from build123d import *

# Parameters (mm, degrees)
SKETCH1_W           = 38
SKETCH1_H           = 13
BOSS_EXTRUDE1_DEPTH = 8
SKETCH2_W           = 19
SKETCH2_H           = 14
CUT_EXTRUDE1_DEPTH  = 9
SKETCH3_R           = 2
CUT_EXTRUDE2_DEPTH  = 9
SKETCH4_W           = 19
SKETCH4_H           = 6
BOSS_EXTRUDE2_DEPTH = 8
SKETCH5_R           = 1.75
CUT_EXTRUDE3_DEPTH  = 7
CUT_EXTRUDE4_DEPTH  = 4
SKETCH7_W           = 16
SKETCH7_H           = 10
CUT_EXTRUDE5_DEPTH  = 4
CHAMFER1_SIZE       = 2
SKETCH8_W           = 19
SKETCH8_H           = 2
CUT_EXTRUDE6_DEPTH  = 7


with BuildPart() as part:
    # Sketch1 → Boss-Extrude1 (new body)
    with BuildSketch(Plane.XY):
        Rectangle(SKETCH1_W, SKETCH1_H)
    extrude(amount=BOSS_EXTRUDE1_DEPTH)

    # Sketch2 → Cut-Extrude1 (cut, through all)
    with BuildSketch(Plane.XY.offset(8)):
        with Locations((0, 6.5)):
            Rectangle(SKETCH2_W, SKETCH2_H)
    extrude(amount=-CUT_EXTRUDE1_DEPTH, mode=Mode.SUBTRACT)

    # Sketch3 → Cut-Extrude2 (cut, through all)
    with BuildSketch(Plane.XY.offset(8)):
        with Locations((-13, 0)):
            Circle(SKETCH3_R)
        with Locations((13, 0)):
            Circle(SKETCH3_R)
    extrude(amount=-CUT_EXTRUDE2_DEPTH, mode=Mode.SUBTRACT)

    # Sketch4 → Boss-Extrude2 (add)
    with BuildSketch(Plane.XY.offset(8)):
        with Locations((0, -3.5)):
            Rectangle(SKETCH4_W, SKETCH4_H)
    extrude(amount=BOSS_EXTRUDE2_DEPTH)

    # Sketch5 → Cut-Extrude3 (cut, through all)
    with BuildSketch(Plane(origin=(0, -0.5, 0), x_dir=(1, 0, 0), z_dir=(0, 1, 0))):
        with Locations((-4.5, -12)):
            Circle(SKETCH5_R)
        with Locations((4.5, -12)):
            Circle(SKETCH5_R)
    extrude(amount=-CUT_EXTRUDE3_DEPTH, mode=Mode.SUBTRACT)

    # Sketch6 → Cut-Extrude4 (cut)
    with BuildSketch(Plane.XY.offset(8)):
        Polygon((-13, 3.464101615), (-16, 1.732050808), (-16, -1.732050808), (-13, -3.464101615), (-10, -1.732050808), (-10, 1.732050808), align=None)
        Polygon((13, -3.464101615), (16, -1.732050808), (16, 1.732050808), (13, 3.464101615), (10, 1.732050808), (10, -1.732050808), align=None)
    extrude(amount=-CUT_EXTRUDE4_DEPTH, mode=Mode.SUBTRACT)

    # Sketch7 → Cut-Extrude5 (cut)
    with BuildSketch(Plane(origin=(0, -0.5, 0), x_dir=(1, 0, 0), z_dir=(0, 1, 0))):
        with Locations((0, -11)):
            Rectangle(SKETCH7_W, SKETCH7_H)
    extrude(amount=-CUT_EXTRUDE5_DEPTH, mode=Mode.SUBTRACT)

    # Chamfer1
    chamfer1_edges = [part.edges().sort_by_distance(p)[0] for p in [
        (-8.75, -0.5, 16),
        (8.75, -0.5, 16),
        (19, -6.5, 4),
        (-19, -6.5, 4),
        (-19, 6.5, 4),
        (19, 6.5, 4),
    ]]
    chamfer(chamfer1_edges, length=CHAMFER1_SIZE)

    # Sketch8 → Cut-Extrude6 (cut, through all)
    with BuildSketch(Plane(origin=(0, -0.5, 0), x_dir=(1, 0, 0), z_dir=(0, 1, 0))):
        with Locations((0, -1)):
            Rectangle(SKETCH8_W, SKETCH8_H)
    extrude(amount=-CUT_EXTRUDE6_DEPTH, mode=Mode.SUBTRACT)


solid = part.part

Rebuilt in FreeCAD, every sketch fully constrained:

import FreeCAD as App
import Part
import Sketcher
from FreeCAD import Vector
Q = App.Units.Quantity


def edges_at(feature, points):
    """Names of the edges that pass closest to the given points."""
    edges = feature.Shape.Edges
    near = lambda p: min(range(len(edges)), key=lambda i: edges[i].distToShape(Part.Vertex(*p))[0])
    return sorted({f"Edge{near(p) + 1}" for p in points})


def add_polygon(sketch, points):
    """Adds a closed chain of lines whose ends are joined by coincident constraints."""
    first, n = sketch.GeometryCount, len(points)
    for a, b in zip(points, points[1:] + points[:1]):
        sketch.addGeometry(Part.LineSegment(App.Vector(*a, 0), App.Vector(*b, 0)), False)
    for i in range(n):
        sketch.addConstraint(Sketcher.Constraint("Coincident", first + i, 2, first + (i + 1) % n, 1))

doc = App.newDocument("Part")
body = doc.addObject("PartDesign::Body", "Body")

sketch1 = body.newObject("Sketcher::SketchObject", "Sketch")
sketch1.AttachmentSupport = (doc.getObject("XY_Plane"), [""])
sketch1.MapMode = "FlatFace"
add_polygon(sketch1, [(-19, 6), (-19, -6), (19, -6), (19, 6)])
sketch1.addConstraint([
    Sketcher.Constraint("Vertical", 0),
    Sketcher.Constraint("Horizontal", 1),
    Sketcher.Constraint("Vertical", 2),
    Sketcher.Constraint("Horizontal", 3),
    Sketcher.Constraint("Symmetric", 0, 2, 2, 2, -1, 1),
    Sketcher.Constraint("DistanceX", 1, 1, 1, 2, 38.0),
    Sketcher.Constraint("DistanceY", 0, 2, 0, 1, 13.0),
])
pad1 = body.newObject("PartDesign::Pad", "Pad")
pad1.Profile = sketch1
pad1.Length = 8

sketch2 = body.newObject("Sketcher::SketchObject", "Sketch001")
sketch2.AttachmentSupport = (doc.getObject("XY_Plane"), [""])
sketch2.MapMode = "FlatFace"
sketch2.AttachmentOffset = App.Placement(Vector(0, 0, 8), App.Rotation())
add_polygon(sketch2, [(-10, 14), (-10, 0), (10, 0), (10, 14)])
sketch2.addConstraint([
    Sketcher.Constraint("Vertical", 0),
    Sketcher.Constraint("Horizontal", 1),
    Sketcher.Constraint("Vertical", 2),
    Sketcher.Constraint("Horizontal", 3),
    Sketcher.Constraint("DistanceX", 1, 1, 1, 2, 19.0),
    Sketcher.Constraint("DistanceY", 0, 2, 0, 1, 14.0),
    Sketcher.Constraint("DistanceX", 0, 2, -1, 1, 9.5),
    Sketcher.Constraint("DistanceY", 0, 2, -1, 1, 0.5),
])
pocket1 = body.newObject("PartDesign::Pocket", "Pocket")
pocket1.Profile = sketch2
pocket1.Type = "ThroughAll"

sketch3 = body.newObject("Sketcher::SketchObject", "Sketch002")
sketch3.AttachmentSupport = (doc.getObject("XY_Plane"), [""])
sketch3.MapMode = "FlatFace"
sketch3.AttachmentOffset = App.Placement(Vector(0, 0, 8), App.Rotation())
sketch3.addGeometry([
    Part.Circle(Vector(-13, 0, 0), Vector(0, 0, 1), 2),
    Part.Circle(Vector(13, 0, 0), Vector(0, 0, 1), 2),
], False)
sketch3.addConstraint([
    Sketcher.Constraint("Equal", 0, 1),
    Sketcher.Constraint("Symmetric", 0, 3, 1, 3, -1, 1),
    Sketcher.Constraint("PointOnObject", 0, 3, -1),
    Sketcher.Constraint("Diameter", 0, 4.0),
    Sketcher.Constraint("DistanceX", 0, 3, -1, 1, 13.0),
])
pocket2 = body.newObject("PartDesign::Pocket", "Pocket001")
pocket2.Profile = sketch3
pocket2.Type = "ThroughAll"

sketch4 = body.newObject("Sketcher::SketchObject", "Sketch003")
sketch4.AttachmentSupport = (doc.getObject("XY_Plane"), [""])
sketch4.MapMode = "FlatFace"
sketch4.AttachmentOffset = App.Placement(Vector(0, 0, 8), App.Rotation())
add_polygon(sketch4, [(-10, 0), (-10, -6), (10, -6), (10, 0)])
sketch4.addConstraint([
    Sketcher.Constraint("Vertical", 0),
    Sketcher.Constraint("Horizontal", 1),
    Sketcher.Constraint("Vertical", 2),
    Sketcher.Constraint("Horizontal", 3),
    Sketcher.Constraint("DistanceX", 1, 1, 1, 2, 19.0),
    Sketcher.Constraint("DistanceY", 0, 2, 0, 1, 6.0),
    Sketcher.Constraint("DistanceX", 0, 2, -1, 1, 9.5),
    Sketcher.Constraint("DistanceY", 0, 2, -1, 1, 6.5),
])
pad2 = body.newObject("PartDesign::Pad", "Pad001")
pad2.Profile = sketch4
pad2.Length = 8

sketch5 = body.newObject("Sketcher::SketchObject", "Sketch004")
sketch5.AttachmentSupport = (doc.getObject("XZ_Plane"), [""])
sketch5.MapMode = "FlatFace"
sketch5.AttachmentOffset = App.Placement(Vector(0, 0, 0.5), App.Rotation())
sketch5.addGeometry([
    Part.Circle(Vector(-4.5, 12, 0), Vector(0, 0, 1), 1.8),
    Part.Circle(Vector(4.5, 12, 0), Vector(0, 0, 1), 1.8),
], False)
sketch5.addConstraint([
    Sketcher.Constraint("Equal", 0, 1),
    Sketcher.Constraint("Symmetric", 0, 3, 1, 3, -2),
    Sketcher.Constraint("Diameter", 0, 3.5),
    Sketcher.Constraint("DistanceY", -1, 1, 0, 3, 12.0),
    Sketcher.Constraint("DistanceX", 0, 3, 1, 3, 9.0),
])
pocket3 = body.newObject("PartDesign::Pocket", "Pocket002")
pocket3.Profile = sketch5
pocket3.Type = "ThroughAll"
pocket3.Reversed = True

sketch6 = body.newObject("Sketcher::SketchObject", "Sketch005")
sketch6.AttachmentSupport = (doc.getObject("XY_Plane"), [""])
sketch6.MapMode = "FlatFace"
sketch6.AttachmentOffset = App.Placement(Vector(0, 0, 8), App.Rotation())
add_polygon(sketch6, [(-13, 3.5), (-16, 1.7), (-16, -1.7), (-13, -3.5), (-10, -1.7), (-10, 1.7)])
add_polygon(sketch6, [(13, -3.5), (16, -1.7), (16, 1.7), (13, 3.5), (10, 1.7), (10, -1.7)])
sketch6.addConstraint([
    Sketcher.Constraint("Vertical", 1),
    Sketcher.Constraint("Vertical", 4),
    Sketcher.Constraint("Vertical", 7),
    Sketcher.Constraint("Vertical", 10),
    Sketcher.Constraint("Symmetric", 0, 2, 6, 2, -1, 1),
    Sketcher.Constraint("Symmetric", 2, 2, 8, 2, -1, 1),
    Sketcher.Constraint("Symmetric", 3, 2, 9, 2, -1, 1),
    Sketcher.Constraint("Symmetric", 5, 2, 11, 2, -1, 1),
    Sketcher.Constraint("Symmetric", 5, 2, 8, 2, -2),
    Sketcher.Constraint("Parallel", 0, 3),
    Sketcher.Constraint("Parallel", 2, 5),
    Sketcher.Constraint("Parallel", 5, 8),
    Sketcher.Constraint("Parallel", 8, 11),
    Sketcher.Constraint("Horizontal", 1, 2, 3, 2),
    Sketcher.Constraint("Horizontal", 0, 2, 4, 2),
    Sketcher.Constraint("Angle", 0, Q("-150 deg")),
    Sketcher.Constraint("DistanceX", 0, 2, -1, 1, 16.0),
    Sketcher.Constraint("DistanceX", 2, 2, -1, 1, 13.0),
    Sketcher.Constraint("DistanceY", 1, 2, 1, 1, 3.464102),
])
pocket4 = body.newObject("PartDesign::Pocket", "Pocket003")
pocket4.Profile = sketch6
pocket4.Length = 4

sketch7 = body.newObject("Sketcher::SketchObject", "Sketch006")
sketch7.AttachmentSupport = (doc.getObject("XZ_Plane"), [""])
sketch7.MapMode = "FlatFace"
sketch7.AttachmentOffset = App.Placement(Vector(0, 0, 0.5), App.Rotation())
add_polygon(sketch7, [(-8, 6), (-8, 16), (8, 16), (8, 6)])
sketch7.addConstraint([
    Sketcher.Constraint("Vertical", 0),
    Sketcher.Constraint("Horizontal", 1),
    Sketcher.Constraint("Vertical", 2),
    Sketcher.Constraint("Horizontal", 3),
    Sketcher.Constraint("DistanceX", 1, 1, 1, 2, 16.0),
    Sketcher.Constraint("DistanceY", 0, 1, 0, 2, 10.0),
    Sketcher.Constraint("DistanceX", 0, 2, -1, 1, 8.0),
    Sketcher.Constraint("DistanceY", -1, 1, 0, 2, 16.0),
])
pocket5 = body.newObject("PartDesign::Pocket", "Pocket004")
pocket5.Profile = sketch7
pocket5.Length = 4
pocket5.Reversed = True
doc.recompute()

chamfer = body.newObject("PartDesign::Chamfer", "Chamfer")
chamfer.Base = (pocket5, edges_at(pocket5, [
    (-8.75, -0.5, 16),
    (8.75, -0.5, 16),
    (19, -6.5, 4),
    (-19, -6.5, 4),
    (-19, 6.5, 4),
    (19, 6.5, 4),
]))
chamfer.Size = 2

sketch8 = body.newObject("Sketcher::SketchObject", "Sketch007")
sketch8.AttachmentSupport = (doc.getObject("XZ_Plane"), [""])
sketch8.MapMode = "FlatFace"
sketch8.AttachmentOffset = App.Placement(Vector(0, 0, 0.5), App.Rotation())
add_polygon(sketch8, [(-9.5, 0), (-9.5, 2), (9.5, 2), (9.5, 0)])
sketch8.addConstraint([
    Sketcher.Constraint("Vertical", 0),
    Sketcher.Constraint("Horizontal", 1),
    Sketcher.Constraint("Vertical", 2),
    Sketcher.Constraint("Horizontal", 3),
    Sketcher.Constraint("Symmetric", 2, 2, 3, 2, -1, 1),
    Sketcher.Constraint("DistanceX", 1, 1, 1, 2, 19.0),
    Sketcher.Constraint("DistanceY", 0, 1, 0, 2, 2.0),
])
pocket6 = body.newObject("PartDesign::Pocket", "Pocket005")
pocket6.Profile = sketch8
pocket6.Type = "ThroughAll"
pocket6.Reversed = True

doc.recompute()
